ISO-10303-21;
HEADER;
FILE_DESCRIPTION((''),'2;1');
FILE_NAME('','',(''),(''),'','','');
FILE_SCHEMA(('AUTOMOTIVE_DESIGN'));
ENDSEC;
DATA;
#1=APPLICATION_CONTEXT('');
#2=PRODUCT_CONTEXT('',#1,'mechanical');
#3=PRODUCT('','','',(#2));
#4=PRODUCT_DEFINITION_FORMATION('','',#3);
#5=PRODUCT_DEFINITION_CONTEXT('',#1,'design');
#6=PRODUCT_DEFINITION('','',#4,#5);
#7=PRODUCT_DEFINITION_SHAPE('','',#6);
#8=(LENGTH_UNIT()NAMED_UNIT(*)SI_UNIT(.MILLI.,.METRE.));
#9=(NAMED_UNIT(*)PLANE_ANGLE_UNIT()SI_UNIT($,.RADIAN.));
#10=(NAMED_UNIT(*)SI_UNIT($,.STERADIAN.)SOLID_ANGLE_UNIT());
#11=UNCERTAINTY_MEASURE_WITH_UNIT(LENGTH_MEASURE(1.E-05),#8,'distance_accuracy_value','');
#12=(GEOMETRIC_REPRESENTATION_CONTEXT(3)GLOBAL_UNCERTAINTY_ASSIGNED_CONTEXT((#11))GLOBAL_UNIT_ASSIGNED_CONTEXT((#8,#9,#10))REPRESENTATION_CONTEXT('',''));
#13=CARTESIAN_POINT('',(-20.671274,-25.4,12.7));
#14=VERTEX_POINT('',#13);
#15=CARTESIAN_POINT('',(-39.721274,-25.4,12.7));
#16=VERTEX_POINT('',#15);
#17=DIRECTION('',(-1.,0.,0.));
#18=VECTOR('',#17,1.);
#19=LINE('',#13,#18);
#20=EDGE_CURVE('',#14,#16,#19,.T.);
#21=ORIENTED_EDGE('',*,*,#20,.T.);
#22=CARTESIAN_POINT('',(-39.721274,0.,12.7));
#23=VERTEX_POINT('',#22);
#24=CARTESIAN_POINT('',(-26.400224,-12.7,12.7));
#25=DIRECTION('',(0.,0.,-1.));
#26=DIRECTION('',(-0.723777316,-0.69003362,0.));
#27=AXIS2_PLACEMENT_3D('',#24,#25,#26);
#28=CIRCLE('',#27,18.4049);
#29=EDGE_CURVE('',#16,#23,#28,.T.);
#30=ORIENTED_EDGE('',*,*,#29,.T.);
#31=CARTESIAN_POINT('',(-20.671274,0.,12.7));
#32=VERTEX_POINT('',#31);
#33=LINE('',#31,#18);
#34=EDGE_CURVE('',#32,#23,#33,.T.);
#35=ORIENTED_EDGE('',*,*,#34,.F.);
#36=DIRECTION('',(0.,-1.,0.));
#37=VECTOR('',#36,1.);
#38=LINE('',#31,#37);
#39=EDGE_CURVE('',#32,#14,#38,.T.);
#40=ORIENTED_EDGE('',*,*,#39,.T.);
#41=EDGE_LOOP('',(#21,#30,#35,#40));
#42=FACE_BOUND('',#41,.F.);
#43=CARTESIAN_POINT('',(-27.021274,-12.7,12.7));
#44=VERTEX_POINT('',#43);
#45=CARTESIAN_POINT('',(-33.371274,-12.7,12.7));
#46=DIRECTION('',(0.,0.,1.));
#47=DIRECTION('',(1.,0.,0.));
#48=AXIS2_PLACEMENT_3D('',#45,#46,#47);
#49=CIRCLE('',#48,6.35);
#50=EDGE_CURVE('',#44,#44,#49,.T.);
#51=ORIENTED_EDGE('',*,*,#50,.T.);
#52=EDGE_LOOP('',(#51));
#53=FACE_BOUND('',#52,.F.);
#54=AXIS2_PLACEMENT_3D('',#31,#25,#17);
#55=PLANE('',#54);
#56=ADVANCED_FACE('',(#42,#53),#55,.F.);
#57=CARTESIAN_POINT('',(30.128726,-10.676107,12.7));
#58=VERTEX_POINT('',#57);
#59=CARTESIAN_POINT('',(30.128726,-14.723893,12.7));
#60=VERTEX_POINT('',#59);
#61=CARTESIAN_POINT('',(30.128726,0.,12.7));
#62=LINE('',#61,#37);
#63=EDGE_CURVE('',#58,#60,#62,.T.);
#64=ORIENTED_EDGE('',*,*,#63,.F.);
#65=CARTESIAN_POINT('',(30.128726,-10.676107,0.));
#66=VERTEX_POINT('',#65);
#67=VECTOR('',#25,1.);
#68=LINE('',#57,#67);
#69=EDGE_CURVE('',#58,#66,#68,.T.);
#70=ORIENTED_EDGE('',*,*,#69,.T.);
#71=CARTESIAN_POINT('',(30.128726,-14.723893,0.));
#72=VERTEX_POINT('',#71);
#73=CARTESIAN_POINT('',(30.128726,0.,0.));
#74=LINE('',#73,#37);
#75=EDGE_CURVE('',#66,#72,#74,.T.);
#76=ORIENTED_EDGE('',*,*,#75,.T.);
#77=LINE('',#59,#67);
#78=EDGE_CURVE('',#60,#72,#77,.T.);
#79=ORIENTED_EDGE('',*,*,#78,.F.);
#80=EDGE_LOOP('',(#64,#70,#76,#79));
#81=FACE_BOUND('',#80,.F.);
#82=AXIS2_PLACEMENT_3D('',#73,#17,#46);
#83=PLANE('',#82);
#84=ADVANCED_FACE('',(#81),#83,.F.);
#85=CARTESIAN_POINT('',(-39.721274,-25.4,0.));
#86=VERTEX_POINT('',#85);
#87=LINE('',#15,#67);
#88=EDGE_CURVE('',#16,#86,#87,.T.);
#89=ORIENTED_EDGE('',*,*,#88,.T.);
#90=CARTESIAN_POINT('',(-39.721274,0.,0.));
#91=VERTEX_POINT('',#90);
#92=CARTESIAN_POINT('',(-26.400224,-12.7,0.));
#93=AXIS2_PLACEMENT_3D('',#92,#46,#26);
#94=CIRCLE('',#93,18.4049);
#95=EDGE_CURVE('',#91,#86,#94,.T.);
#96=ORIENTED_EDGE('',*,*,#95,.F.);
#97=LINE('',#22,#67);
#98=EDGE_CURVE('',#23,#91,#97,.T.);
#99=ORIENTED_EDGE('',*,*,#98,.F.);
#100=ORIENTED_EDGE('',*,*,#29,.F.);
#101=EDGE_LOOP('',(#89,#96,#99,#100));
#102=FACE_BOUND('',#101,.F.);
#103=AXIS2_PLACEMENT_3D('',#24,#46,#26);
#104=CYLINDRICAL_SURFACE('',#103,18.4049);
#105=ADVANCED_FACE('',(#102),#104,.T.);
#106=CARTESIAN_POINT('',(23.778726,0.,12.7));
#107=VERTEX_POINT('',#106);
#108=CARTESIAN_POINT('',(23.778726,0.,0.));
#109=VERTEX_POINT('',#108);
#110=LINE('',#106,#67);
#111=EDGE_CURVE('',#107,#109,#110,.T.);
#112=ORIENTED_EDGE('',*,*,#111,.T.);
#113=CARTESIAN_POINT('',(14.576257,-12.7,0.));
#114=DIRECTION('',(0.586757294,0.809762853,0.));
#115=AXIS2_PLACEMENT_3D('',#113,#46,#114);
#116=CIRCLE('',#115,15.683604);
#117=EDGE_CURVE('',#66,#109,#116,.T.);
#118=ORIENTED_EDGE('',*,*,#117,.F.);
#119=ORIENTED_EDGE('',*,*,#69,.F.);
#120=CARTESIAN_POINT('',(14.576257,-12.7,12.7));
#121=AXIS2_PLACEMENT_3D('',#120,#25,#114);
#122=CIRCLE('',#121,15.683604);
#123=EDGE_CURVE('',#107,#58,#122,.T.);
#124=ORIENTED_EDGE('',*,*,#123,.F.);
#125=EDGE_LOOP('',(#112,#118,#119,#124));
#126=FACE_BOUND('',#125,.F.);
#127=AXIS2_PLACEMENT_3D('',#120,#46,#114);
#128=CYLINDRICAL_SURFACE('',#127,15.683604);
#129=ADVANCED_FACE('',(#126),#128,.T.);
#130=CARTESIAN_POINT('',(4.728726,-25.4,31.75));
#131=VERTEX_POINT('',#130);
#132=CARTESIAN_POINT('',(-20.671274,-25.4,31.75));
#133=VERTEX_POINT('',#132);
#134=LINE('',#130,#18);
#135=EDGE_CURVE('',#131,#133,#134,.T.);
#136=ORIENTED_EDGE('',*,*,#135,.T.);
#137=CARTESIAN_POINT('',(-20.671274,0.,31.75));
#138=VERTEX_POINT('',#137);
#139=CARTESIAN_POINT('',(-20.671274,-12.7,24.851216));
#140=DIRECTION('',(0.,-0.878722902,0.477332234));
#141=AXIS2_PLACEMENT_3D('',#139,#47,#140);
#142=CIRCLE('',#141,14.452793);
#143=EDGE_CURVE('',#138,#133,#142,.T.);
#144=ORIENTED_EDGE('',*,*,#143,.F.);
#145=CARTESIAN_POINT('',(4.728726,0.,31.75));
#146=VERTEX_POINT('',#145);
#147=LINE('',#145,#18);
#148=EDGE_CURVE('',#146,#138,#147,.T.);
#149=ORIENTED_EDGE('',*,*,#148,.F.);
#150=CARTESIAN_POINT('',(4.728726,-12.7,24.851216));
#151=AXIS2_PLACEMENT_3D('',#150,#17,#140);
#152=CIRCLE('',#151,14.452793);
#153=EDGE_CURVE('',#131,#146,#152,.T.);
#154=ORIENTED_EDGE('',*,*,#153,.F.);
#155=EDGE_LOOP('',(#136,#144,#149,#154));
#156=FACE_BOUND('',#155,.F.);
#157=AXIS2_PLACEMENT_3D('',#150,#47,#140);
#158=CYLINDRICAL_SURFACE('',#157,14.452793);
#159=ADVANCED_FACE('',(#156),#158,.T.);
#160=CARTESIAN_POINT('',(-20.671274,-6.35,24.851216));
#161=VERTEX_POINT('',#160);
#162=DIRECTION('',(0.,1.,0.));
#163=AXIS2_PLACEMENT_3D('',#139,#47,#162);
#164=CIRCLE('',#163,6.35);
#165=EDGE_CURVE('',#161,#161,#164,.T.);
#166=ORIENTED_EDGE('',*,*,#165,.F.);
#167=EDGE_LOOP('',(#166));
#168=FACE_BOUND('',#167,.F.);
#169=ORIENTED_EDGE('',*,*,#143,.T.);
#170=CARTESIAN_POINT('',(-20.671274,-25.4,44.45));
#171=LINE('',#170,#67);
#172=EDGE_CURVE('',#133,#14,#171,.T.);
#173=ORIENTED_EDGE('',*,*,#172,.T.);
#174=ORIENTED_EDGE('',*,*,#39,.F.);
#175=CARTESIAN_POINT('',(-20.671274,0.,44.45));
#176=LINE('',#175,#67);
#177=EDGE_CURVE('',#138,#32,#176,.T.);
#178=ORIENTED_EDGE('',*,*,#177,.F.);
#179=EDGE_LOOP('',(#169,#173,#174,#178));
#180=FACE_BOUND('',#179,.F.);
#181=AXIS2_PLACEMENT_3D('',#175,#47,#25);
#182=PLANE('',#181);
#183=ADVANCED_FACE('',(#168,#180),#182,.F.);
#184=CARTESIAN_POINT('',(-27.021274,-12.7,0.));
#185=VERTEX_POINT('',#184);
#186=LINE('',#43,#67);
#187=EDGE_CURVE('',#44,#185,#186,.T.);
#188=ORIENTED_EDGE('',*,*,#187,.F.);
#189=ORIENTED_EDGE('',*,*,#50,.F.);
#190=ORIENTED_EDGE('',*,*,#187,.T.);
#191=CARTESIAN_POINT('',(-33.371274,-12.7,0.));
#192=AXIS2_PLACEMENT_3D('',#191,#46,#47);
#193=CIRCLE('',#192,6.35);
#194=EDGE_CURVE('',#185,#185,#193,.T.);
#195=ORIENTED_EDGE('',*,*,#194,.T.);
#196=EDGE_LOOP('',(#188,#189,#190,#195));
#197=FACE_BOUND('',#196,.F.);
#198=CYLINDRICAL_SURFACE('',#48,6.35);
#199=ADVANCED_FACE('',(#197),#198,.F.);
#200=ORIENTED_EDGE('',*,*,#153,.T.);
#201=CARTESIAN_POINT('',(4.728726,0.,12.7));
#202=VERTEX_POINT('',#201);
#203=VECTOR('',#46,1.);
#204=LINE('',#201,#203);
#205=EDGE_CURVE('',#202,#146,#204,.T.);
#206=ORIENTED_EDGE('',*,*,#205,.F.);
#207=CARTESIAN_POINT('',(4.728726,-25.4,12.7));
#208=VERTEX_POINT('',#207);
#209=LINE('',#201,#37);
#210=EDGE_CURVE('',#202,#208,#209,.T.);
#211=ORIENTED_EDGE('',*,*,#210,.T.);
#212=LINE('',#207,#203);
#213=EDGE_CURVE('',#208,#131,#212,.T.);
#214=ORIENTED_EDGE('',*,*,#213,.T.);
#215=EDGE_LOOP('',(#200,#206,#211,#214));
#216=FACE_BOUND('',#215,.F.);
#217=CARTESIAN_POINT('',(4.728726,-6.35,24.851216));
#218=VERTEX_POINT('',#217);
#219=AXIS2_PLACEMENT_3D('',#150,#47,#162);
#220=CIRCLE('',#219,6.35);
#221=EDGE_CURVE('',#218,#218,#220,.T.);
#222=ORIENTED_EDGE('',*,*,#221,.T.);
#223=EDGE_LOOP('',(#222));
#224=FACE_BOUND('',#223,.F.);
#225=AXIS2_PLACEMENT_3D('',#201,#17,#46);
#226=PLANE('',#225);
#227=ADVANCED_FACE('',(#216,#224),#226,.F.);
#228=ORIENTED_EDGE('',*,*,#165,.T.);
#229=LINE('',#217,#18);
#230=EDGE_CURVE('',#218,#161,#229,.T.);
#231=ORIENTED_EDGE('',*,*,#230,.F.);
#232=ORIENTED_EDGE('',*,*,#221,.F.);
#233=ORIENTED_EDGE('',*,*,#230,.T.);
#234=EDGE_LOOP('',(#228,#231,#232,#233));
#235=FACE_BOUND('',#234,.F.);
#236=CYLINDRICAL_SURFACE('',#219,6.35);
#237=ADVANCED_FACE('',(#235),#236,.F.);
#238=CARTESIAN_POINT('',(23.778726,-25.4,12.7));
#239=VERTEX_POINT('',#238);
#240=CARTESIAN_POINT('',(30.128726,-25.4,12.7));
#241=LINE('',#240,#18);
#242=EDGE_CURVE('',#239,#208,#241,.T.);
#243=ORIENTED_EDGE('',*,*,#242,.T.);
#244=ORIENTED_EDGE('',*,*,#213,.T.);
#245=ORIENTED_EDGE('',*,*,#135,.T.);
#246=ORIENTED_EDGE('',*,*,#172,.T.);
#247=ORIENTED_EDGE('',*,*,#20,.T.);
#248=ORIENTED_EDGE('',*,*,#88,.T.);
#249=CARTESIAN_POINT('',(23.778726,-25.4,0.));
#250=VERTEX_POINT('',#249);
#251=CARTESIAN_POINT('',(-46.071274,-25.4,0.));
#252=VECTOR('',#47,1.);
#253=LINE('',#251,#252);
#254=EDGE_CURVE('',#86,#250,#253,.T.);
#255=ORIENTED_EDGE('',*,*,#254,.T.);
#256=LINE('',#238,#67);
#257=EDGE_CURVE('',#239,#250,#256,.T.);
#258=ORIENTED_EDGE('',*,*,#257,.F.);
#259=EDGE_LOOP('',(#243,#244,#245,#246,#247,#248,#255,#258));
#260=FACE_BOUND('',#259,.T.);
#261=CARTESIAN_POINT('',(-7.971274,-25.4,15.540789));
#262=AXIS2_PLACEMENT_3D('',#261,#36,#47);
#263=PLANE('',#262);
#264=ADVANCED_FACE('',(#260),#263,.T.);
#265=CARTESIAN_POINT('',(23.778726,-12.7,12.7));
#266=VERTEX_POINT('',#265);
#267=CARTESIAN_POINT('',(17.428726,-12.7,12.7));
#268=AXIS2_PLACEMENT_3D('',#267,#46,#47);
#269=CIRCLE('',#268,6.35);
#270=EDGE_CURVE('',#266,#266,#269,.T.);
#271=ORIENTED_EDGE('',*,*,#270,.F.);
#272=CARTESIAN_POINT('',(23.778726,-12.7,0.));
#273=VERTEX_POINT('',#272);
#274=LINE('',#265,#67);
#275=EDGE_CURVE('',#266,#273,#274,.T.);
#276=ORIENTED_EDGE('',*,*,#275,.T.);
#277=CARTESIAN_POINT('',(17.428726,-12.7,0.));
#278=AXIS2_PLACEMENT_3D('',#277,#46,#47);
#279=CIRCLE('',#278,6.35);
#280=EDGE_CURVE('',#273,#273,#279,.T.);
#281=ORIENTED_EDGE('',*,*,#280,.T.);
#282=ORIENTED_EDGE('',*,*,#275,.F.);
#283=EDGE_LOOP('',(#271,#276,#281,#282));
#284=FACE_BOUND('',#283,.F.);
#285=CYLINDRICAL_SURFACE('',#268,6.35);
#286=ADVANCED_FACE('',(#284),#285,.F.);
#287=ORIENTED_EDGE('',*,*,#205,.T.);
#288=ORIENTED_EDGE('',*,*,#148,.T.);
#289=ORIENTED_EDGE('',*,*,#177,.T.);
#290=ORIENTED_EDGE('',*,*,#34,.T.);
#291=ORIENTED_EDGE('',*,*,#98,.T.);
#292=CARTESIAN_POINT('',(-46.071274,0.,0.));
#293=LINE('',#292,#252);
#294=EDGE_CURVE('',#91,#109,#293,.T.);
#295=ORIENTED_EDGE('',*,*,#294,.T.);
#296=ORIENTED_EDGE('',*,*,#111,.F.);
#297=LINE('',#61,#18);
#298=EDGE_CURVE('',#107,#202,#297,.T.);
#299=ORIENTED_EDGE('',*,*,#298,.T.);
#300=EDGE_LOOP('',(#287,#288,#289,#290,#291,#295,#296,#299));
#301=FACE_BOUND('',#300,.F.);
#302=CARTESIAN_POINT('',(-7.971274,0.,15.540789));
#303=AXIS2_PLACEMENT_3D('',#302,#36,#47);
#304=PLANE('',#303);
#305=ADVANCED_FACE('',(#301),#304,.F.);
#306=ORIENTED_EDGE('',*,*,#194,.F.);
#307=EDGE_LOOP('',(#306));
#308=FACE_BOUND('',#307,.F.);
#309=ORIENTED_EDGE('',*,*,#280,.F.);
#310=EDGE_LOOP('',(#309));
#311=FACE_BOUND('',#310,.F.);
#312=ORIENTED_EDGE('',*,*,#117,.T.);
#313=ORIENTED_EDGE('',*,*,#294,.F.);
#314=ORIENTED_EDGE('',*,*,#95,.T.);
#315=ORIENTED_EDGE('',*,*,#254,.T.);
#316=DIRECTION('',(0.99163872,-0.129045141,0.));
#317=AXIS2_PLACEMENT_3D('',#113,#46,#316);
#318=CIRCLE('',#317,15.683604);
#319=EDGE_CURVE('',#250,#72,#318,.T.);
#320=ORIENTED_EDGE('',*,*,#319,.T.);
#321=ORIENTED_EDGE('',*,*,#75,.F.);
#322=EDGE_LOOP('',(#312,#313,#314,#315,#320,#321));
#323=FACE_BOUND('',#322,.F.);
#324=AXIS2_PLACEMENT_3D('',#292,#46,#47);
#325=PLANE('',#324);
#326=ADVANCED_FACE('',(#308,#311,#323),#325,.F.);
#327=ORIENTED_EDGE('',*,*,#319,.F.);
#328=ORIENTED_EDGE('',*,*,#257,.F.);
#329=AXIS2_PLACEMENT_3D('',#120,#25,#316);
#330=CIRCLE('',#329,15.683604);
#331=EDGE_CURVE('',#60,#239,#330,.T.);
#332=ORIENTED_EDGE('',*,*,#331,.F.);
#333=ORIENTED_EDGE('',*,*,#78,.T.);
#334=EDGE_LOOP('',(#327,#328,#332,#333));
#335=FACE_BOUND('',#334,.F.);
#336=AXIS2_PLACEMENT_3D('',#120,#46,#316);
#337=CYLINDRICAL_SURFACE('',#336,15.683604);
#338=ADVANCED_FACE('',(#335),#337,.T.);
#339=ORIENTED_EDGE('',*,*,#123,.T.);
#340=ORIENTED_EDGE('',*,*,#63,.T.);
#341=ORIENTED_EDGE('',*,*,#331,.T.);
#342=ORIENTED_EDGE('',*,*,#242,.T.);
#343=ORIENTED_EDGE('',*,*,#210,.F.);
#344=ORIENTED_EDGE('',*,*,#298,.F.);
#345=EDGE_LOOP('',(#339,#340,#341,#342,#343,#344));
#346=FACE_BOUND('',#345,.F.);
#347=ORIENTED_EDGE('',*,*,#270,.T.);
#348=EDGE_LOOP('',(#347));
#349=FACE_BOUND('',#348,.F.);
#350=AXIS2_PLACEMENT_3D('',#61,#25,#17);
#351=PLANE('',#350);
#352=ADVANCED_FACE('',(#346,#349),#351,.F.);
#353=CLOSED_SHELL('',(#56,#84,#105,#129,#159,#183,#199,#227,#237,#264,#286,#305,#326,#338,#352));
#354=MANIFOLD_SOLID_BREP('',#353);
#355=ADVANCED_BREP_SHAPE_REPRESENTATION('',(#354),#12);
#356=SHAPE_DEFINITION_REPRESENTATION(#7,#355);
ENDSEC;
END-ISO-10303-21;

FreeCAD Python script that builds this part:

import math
import FreeCAD as App
import Part
import Sketcher
from FreeCAD import Vector
Q = App.Units.Quantity


def add_polygon(sketch, points):
    """Adds a closed chain of lines whose ends are joined by coincident constraints."""
    first, n = sketch.GeometryCount, len(points)
    for a, b in zip(points, points[1:] + points[:1]):
        sketch.addGeometry(Part.LineSegment(App.Vector(*a, 0), App.Vector(*b, 0)), False)
    for i in range(n):
        sketch.addConstraint(Sketcher.Constraint("Coincident", first + i, 2, first + (i + 1) % n, 1))

doc = App.newDocument("Part")
body = doc.addObject("PartDesign::Body", "Body")

sketch1 = body.newObject("Sketcher::SketchObject", "Sketch")
sketch1.AttachmentSupport = (doc.getObject("XZ_Plane"), [""])
sketch1.MapMode = "FlatFace"
add_polygon(sketch1, [(-21, 13), (-46, 13), (-46, 0), (30, 0), (30, 13), (5, 13), (5, 44), (-21, 44)])
sketch1.addConstraint(Sketcher.Constraint("Horizontal", 0))
sketch1.addConstraint(Sketcher.Constraint("Vertical", 1))
sketch1.addConstraint(Sketcher.Constraint("Horizontal", 2))
sketch1.addConstraint(Sketcher.Constraint("Vertical", 3))
sketch1.addConstraint(Sketcher.Constraint("Horizontal", 4))
sketch1.addConstraint(Sketcher.Constraint("Vertical", 5))
sketch1.addConstraint(Sketcher.Constraint("Horizontal", 6))
sketch1.addConstraint(Sketcher.Constraint("Vertical", 7))
sketch1.addConstraint(Sketcher.Constraint("PointOnObject", 1, 2, -1))
sketch1.addConstraint(Sketcher.Constraint("Horizontal", 0, 2, 3, 2))
sketch1.addConstraint(Sketcher.Constraint("Equal", 0, 4))
sketch1.addConstraint(Sketcher.Constraint("Equal", 4, 6))
sketch1.addConstraint(Sketcher.Constraint("DistanceX", 0, 2, 0, 1, Q("1 in")))
sketch1.addConstraint(Sketcher.Constraint("DistanceY", 1, 2, 1, 1, Q("0.5 in")))
sketch1.addConstraint(Sketcher.Constraint("DistanceY", 5, 1, 5, 2, Q("1.25 in")))
sketch1.addConstraint(Sketcher.Constraint("DistanceX", 0, 2, -1, 1, Q("46.071274 mm")))
pad1 = body.newObject("PartDesign::Pad", "Pad")
pad1.Profile = sketch1
pad1.Length = Q("1 in")

sketch2 = body.newObject("Sketcher::SketchObject", "Sketch001")
sketch2.AttachmentSupport = (doc.getObject("XY_Plane"), [""])
sketch2.MapMode = "FlatFace"
sketch2.AttachmentOffset = App.Placement(Vector(0, 0, 0.5 * 25.4), App.Rotation())
sketch2.addGeometry(Part.Circle(Vector(17, -13, 0), Vector(0, 0, 1), 6), False)
sketch2.addGeometry(Part.Circle(Vector(-33, -13, 0), Vector(0, 0, 1), 6), False)
sketch2.addConstraint(Sketcher.Constraint("Equal", 0, 1))
sketch2.addConstraint(Sketcher.Constraint("Horizontal", 0, 3, 1, 3))
sketch2.addConstraint(Sketcher.Constraint("Diameter", 0, Q("0.5 in")))
sketch2.addConstraint(Sketcher.Constraint("DistanceX", 1, 3, 0, 3, Q("2 in")))
sketch2.addConstraint(Sketcher.Constraint("DistanceY", 0, 3, -1, 1, Q("0.5 in")))
sketch2.addConstraint(Sketcher.Constraint("DistanceX", -1, 1, 0, 3, Q("17.428726 mm")))
pocket1 = body.newObject("PartDesign::Pocket", "Pocket")
pocket1.Profile = sketch2
pocket1.Type = "ThroughAll"

sketch3 = body.newObject("Sketcher::SketchObject", "Sketch002")
sketch3.AttachmentSupport = (doc.getObject("YZ_Plane"), [""])
sketch3.MapMode = "FlatFace"
sketch3.AttachmentOffset = App.Placement(Vector(0, 0, 4.728726), App.Rotation())
sketch3.addGeometry(Part.Circle(Vector(-13, 25, 0), Vector(0, 0, 1), 6), False)
sketch3.addGeometry(Part.ArcOfCircle(Part.Circle(Vector(-13, 25, 0), Vector(0, 0, 1), 14), math.radians(29), math.radians(151)), False)
sketch3.addGeometry(Part.LineSegment(Vector(0, 32, 0), Vector(0, 44, 0)), False)
sketch3.addGeometry(Part.LineSegment(Vector(0, 44, 0), Vector(-25, 44, 0)), False)
sketch3.addGeometry(Part.LineSegment(Vector(-25, 44, 0), Vector(-25, 32, 0)), False)
sketch3.addConstraint(Sketcher.Constraint("Coincident", 1, 1, 2, 1))
sketch3.addConstraint(Sketcher.Constraint("Coincident", 2, 2, 3, 1))
sketch3.addConstraint(Sketcher.Constraint("Coincident", 3, 2, 4, 1))
sketch3.addConstraint(Sketcher.Constraint("Coincident", 4, 2, 1, 2))
sketch3.addConstraint(Sketcher.Constraint("Vertical", 2))
sketch3.addConstraint(Sketcher.Constraint("Horizontal", 3))
sketch3.addConstraint(Sketcher.Constraint("Vertical", 4))
sketch3.addConstraint(Sketcher.Constraint("Coincident", 1, 3, 0, 3))
sketch3.addConstraint(Sketcher.Constraint("PointOnObject", 1, 1, -2))
sketch3.addConstraint(Sketcher.Constraint("Horizontal", 1, 1, 4, 2))
sketch3.addConstraint(Sketcher.Constraint("Diameter", 0, Q("0.5 in")))
sketch3.addConstraint(Sketcher.Constraint("DistanceX", 3, 2, 3, 1, Q("1 in")))
sketch3.addConstraint(Sketcher.Constraint("DistanceY", 2, 1, 2, 2, Q("0.5 in")))
sketch3.addConstraint(Sketcher.Constraint("DistanceY", -1, 1, 1, 1, Q("1.25 in")))
sketch3.addConstraint(Sketcher.Constraint("Radius", 1, Q("14.452793 mm")))
pocket2 = body.newObject("PartDesign::Pocket", "Pocket001")
pocket2.Profile = sketch3
pocket2.Type = "ThroughAll"

sketch4 = body.newObject("Sketcher::SketchObject", "Sketch003")
sketch4.AttachmentSupport = (doc.getObject("XY_Plane"), [""])
sketch4.MapMode = "FlatFace"
sketch4.AttachmentOffset = App.Placement(Vector(0, 0, 0.5 * 25.4), App.Rotation())
sketch4.addGeometry(Part.ArcOfCircle(Part.Circle(Vector(-26, -13, 0), Vector(0, 0, 1), 18), math.radians(136), math.radians(224)), False)
sketch4.addGeometry(Part.LineSegment(Vector(-40, 0, 0), Vector(-46, 0, 0)), False)
sketch4.addGeometry(Part.LineSegment(Vector(-46, 0, 0), Vector(-46, -25, 0)), False)
sketch4.addGeometry(Part.LineSegment(Vector(-46, -25, 0), Vector(-40, -25, 0)), False)
sketch4.addConstraint(Sketcher.Constraint("Coincident", 0, 1, 1, 1))
sketch4.addConstraint(Sketcher.Constraint("Coincident", 1, 2, 2, 1))
sketch4.addConstraint(Sketcher.Constraint("Coincident", 2, 2, 3, 1))
sketch4.addConstraint(Sketcher.Constraint("Coincident", 3, 2, 0, 2))
sketch4.addConstraint(Sketcher.Constraint("Horizontal", 1))
sketch4.addConstraint(Sketcher.Constraint("Vertical", 2))
sketch4.addConstraint(Sketcher.Constraint("Horizontal", 3))
sketch4.addConstraint(Sketcher.Constraint("PointOnObject", 0, 1, -1))
sketch4.addConstraint(Sketcher.Constraint("Vertical", 0, 1, 3, 2))
sketch4.addConstraint(Sketcher.Constraint("DistanceY", 2, 2, 2, 1, Q("1 in")))
sketch4.addConstraint(Sketcher.Constraint("DistanceX", 1, 2, 1, 1, Q("0.25 in")))
sketch4.addConstraint(Sketcher.Constraint("Radius", 0, Q("18.4049 mm")))
sketch4.addConstraint(Sketcher.Constraint("DistanceX", 0, 3, -1, 1, Q("26.400224 mm")))
pocket3 = body.newObject("PartDesign::Pocket", "Pocket002")
pocket3.Profile = sketch4
pocket3.Type = "ThroughAll"

sketch5 = body.newObject("Sketcher::SketchObject", "Sketch004")
sketch5.AttachmentSupport = (doc.getObject("XY_Plane"), [""])
sketch5.MapMode = "FlatFace"
sketch5.AttachmentOffset = App.Placement(Vector(0, 0, 0.5 * 25.4), App.Rotation())
sketch5.addGeometry(Part.ArcOfCircle(Part.Circle(Vector(15, -13, 0), Vector(0, 0, 1), 16), math.radians(7), math.radians(54)), False)
sketch5.addGeometry(Part.LineSegment(Vector(30, -11, 0), Vector(30, 0, 0)), False)
sketch5.addGeometry(Part.LineSegment(Vector(30, 0, 0), Vector(24, 0, 0)), False)
sketch5.addGeometry(Part.ArcOfCircle(Part.Circle(Vector(15, -13, 0), Vector(0, 0, 1), 16), math.radians(-54), math.radians(-7)), False)
sketch5.addGeometry(Part.LineSegment(Vector(24, -25, 0), Vector(30, -25, 0)), False)
sketch5.addGeometry(Part.LineSegment(Vector(30, -25, 0), Vector(30, -15, 0)), False)
sketch5.addConstraint(Sketcher.Constraint("Coincident", 0, 1, 1, 1))
sketch5.addConstraint(Sketcher.Constraint("Coincident", 1, 2, 2, 1))
sketch5.addConstraint(Sketcher.Constraint("Coincident", 2, 2, 0, 2))
sketch5.addConstraint(Sketcher.Constraint("Coincident", 3, 1, 4, 1))
sketch5.addConstraint(Sketcher.Constraint("Coincident", 4, 2, 5, 1))
sketch5.addConstraint(Sketcher.Constraint("Coincident", 5, 2, 3, 2))
sketch5.addConstraint(Sketcher.Constraint("Vertical", 1))
sketch5.addConstraint(Sketcher.Constraint("Horizontal", 2))
sketch5.addConstraint(Sketcher.Constraint("Horizontal", 4))
sketch5.addConstraint(Sketcher.Constraint("Vertical", 5))
sketch5.addConstraint(Sketcher.Constraint("Coincident", 3, 3, 0, 3))
sketch5.addConstraint(Sketcher.Constraint("Equal", 0, 3))
sketch5.addConstraint(Sketcher.Constraint("PointOnObject", 1, 2, -1))
sketch5.addConstraint(Sketcher.Constraint("Vertical", 2, 2, 3, 1))
sketch5.addConstraint(Sketcher.Constraint("Vertical", 1, 2, 4, 2))
sketch5.addConstraint(Sketcher.Constraint("DistanceY", 3, 1, -1, 1, Q("1 in")))
sketch5.addConstraint(Sketcher.Constraint("DistanceX", 2, 2, 2, 1, Q("0.25 in")))
sketch5.addConstraint(Sketcher.Constraint("Radius", 0, Q("15.683604 mm")))
sketch5.addConstraint(Sketcher.Constraint("DistanceX", -1, 1, 0, 3, Q("14.576257 mm")))
pocket4 = body.newObject("PartDesign::Pocket", "Pocket003")
pocket4.Profile = sketch5
pocket4.Type = "ThroughAll"

doc.recompute()
